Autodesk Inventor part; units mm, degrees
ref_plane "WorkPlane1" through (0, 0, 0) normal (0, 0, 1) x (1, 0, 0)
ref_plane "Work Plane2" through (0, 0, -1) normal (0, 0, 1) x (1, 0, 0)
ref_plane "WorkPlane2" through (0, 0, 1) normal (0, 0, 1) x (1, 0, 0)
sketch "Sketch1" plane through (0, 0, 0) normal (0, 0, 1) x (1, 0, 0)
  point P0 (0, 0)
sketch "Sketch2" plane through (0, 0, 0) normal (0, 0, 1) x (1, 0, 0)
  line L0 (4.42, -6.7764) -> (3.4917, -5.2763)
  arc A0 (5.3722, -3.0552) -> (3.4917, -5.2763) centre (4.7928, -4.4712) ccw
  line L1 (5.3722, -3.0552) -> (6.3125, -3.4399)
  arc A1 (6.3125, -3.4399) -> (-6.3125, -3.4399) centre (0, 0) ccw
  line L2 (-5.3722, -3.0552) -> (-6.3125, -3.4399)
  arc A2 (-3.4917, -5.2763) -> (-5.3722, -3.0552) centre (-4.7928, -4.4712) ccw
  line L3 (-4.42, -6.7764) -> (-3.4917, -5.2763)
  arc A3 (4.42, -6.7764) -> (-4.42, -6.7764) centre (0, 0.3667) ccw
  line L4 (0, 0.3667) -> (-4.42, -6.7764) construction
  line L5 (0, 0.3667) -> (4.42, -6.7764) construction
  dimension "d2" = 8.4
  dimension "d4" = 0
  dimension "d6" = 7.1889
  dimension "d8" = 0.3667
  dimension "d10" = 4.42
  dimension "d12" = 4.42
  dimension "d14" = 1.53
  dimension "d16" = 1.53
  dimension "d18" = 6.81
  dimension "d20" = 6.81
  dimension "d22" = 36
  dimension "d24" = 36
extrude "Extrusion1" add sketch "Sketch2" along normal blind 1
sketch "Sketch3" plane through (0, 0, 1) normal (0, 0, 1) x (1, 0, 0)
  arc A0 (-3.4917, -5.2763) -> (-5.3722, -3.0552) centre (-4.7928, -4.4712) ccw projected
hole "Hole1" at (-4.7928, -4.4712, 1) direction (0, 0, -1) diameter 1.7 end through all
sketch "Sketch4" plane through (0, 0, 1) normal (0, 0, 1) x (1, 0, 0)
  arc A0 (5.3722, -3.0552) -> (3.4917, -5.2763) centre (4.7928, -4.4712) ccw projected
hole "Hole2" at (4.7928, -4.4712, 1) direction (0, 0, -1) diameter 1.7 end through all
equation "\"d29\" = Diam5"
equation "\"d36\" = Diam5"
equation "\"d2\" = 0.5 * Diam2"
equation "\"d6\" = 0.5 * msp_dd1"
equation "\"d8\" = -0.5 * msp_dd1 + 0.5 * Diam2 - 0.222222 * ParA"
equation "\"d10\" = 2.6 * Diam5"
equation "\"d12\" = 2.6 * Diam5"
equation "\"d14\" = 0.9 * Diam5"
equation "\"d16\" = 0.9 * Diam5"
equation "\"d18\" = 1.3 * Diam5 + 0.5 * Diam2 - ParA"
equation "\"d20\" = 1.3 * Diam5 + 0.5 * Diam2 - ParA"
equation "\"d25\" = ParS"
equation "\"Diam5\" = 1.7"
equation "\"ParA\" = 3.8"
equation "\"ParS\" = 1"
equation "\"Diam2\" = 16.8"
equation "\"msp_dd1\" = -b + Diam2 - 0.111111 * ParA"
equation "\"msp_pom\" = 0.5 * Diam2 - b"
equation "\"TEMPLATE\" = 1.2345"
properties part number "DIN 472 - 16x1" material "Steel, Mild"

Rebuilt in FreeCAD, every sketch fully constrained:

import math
import FreeCAD as App
import Part
import Sketcher

V = App.Vector
Q = App.Units.Quantity

doc = App.newDocument("Part")
params = doc.addObject("Spreadsheet::Sheet", "Params")
for row, (alias, value) in enumerate([
    ("sketch1_radius", "8.4 mm"),
    ("sketch1_radius2", "1.53 mm"),
    ("pad1_length", "1 mm"),
    ("sketch2_diameter", "1.7 mm"),
    ("hole_diameter", "1.7 mm"),
    ("sketch3_diameter", "1.7 mm"),
    ("hole2_diameter", "1.7 mm"),
], start=1):
    params.set(f"A{row}", alias)
    params.set(f"B{row}", "=" + value)
    params.setAlias(f"B{row}", alias)

body = doc.addObject("PartDesign::Body", "Body")

# Sketch on XY plane
sketch1 = body.newObject("Sketcher::SketchObject", "Sketch")
sketch1.AttachmentSupport = (doc.getObject("XY_Plane"), [""])
sketch1.MapMode = "FlatFace"
sketch1.addGeometry([
    Part.LineSegment(V(3.5, -5.3, 0), V(4.4, -6.8, 0)),  # 0
    Part.ArcOfCircle(Part.Circle(V(0, 0.4, 0), V(0, 0, 1), 8.4), math.radians(-58), math.radians(238)),  # 1
    Part.LineSegment(V(-4.4, -6.8, 0), V(-3.5, -5.3, 0)),  # 2
    Part.ArcOfCircle(Part.Circle(V(-4.8, -4.5, 0), V(0, 0, 1), 1.5), math.radians(-32), math.radians(112)),  # 3
    Part.LineSegment(V(-5.4, -3.1, 0), V(-6.3, -3.4, 0)),  # 4
    Part.ArcOfCircle(Part.Circle(V(0, 0, 0), V(0, 0, 1), 7.2), math.radians(-29), math.radians(209)),  # 5
    Part.LineSegment(V(6.3, -3.4, 0), V(5.4, -3.1, 0)),  # 6
    Part.ArcOfCircle(Part.Circle(V(4.8, -4.5, 0), V(0, 0, 1), 1.5), math.radians(68), math.radians(212)),  # 7
], False)
sketch1.addConstraint([
    Sketcher.Constraint("Coincident", 0, 2, 1, 1),
    Sketcher.Constraint("Coincident", 1, 2, 2, 1),
    Sketcher.Constraint("Tangent", 2, 2, 3, 1),
    Sketcher.Constraint("Tangent", 3, 2, 4, 1),
    Sketcher.Constraint("Coincident", 4, 2, 5, 2),
    Sketcher.Constraint("Coincident", 5, 1, 6, 1),
    Sketcher.Constraint("Tangent", 6, 2, 7, 1),
    Sketcher.Constraint("Tangent", 7, 2, 0, 1),
    Sketcher.Constraint("Coincident", 5, 3, -1, 1),
    Sketcher.Constraint("Equal", 3, 7),
    Sketcher.Constraint("Symmetric", 3, 3, 7, 3, -2),
    Sketcher.Constraint("Symmetric", 0, 2, 1, 2, -2),
    Sketcher.Constraint("Horizontal", 4, 2, 5, 1),
    Sketcher.Constraint("Radius", 1, Q("8.4 mm")),
    Sketcher.Constraint("Radius", 3, Q("1.53 mm")),
    Sketcher.Constraint("Radius", 5, Q("7.189 mm")),
    Sketcher.Constraint("DistanceX", -1, 1, 0, 2, Q("4.42 mm")),
    Sketcher.Constraint("DistanceY", -1, 1, 1, 3, Q("0.3667 mm")),
    Sketcher.Constraint("Angle", 0, Q("-58.2497 deg")),
    Sketcher.Constraint("Angle", 4, Q("-157.7493 deg")),
    Sketcher.Constraint("DistanceY", 1, 2, 2, 2, Q("1.5 mm")),
])
sketch1.setExpression("Constraints[13]", "Params.sketch1_radius")
sketch1.setExpression("Constraints[14]", "Params.sketch1_radius2")
pad1 = body.newObject("PartDesign::Pad", "Pad")
pad1.Profile = sketch1
pad1.setExpression("Length", "Params.pad1_length")

# Sketch on XY plane
sketch2 = body.newObject("Sketcher::SketchObject", "Sketch001")
sketch2.AttachmentSupport = (doc.getObject("XY_Plane"), [""])
sketch2.MapMode = "FlatFace"
sketch2.AttachmentOffset = App.Placement(V(0, 0, 1), App.Rotation())
sketch2.addGeometry(Part.Circle(V(-4.8, -4.5, 0), V(0, 0, 1), 0.8), False)
sketch2.addConstraint([
    Sketcher.Constraint("Diameter", 0, Q("1.7 mm")),
    Sketcher.Constraint("DistanceX", 0, 3, -1, 1, Q("4.7928 mm")),
    Sketcher.Constraint("DistanceY", 0, 3, -1, 1, Q("4.4712 mm")),
])
sketch2.setExpression("Constraints[0]", "Params.sketch2_diameter")
doc.recompute()
hole = body.newObject("PartDesign::Hole", "Hole")
hole.Profile = sketch2
hole.ThreadType = "None"
hole.setExpression("Diameter", "Params.hole_diameter")
hole.DepthType = "ThroughAll"

# Sketch on XY plane
sketch3 = body.newObject("Sketcher::SketchObject", "Sketch002")
sketch3.AttachmentSupport = (doc.getObject("XY_Plane"), [""])
sketch3.MapMode = "FlatFace"
sketch3.AttachmentOffset = App.Placement(V(0, 0, 1), App.Rotation())
sketch3.addGeometry(Part.Circle(V(4.8, -4.5, 0), V(0, 0, 1), 0.8), False)
sketch3.addConstraint([
    Sketcher.Constraint("Diameter", 0, Q("1.7 mm")),
    Sketcher.Constraint("DistanceX", -1, 1, 0, 3, Q("4.7928 mm")),
    Sketcher.Constraint("DistanceY", 0, 3, -1, 1, Q("4.4712 mm")),
])
sketch3.setExpression("Constraints[0]", "Params.sketch3_diameter")
doc.recompute()
hole2 = body.newObject("PartDesign::Hole", "Hole001")
hole2.Profile = sketch3
hole2.ThreadType = "None"
hole2.setExpression("Diameter", "Params.hole2_diameter")
hole2.DepthType = "ThroughAll"

doc.recompute()
